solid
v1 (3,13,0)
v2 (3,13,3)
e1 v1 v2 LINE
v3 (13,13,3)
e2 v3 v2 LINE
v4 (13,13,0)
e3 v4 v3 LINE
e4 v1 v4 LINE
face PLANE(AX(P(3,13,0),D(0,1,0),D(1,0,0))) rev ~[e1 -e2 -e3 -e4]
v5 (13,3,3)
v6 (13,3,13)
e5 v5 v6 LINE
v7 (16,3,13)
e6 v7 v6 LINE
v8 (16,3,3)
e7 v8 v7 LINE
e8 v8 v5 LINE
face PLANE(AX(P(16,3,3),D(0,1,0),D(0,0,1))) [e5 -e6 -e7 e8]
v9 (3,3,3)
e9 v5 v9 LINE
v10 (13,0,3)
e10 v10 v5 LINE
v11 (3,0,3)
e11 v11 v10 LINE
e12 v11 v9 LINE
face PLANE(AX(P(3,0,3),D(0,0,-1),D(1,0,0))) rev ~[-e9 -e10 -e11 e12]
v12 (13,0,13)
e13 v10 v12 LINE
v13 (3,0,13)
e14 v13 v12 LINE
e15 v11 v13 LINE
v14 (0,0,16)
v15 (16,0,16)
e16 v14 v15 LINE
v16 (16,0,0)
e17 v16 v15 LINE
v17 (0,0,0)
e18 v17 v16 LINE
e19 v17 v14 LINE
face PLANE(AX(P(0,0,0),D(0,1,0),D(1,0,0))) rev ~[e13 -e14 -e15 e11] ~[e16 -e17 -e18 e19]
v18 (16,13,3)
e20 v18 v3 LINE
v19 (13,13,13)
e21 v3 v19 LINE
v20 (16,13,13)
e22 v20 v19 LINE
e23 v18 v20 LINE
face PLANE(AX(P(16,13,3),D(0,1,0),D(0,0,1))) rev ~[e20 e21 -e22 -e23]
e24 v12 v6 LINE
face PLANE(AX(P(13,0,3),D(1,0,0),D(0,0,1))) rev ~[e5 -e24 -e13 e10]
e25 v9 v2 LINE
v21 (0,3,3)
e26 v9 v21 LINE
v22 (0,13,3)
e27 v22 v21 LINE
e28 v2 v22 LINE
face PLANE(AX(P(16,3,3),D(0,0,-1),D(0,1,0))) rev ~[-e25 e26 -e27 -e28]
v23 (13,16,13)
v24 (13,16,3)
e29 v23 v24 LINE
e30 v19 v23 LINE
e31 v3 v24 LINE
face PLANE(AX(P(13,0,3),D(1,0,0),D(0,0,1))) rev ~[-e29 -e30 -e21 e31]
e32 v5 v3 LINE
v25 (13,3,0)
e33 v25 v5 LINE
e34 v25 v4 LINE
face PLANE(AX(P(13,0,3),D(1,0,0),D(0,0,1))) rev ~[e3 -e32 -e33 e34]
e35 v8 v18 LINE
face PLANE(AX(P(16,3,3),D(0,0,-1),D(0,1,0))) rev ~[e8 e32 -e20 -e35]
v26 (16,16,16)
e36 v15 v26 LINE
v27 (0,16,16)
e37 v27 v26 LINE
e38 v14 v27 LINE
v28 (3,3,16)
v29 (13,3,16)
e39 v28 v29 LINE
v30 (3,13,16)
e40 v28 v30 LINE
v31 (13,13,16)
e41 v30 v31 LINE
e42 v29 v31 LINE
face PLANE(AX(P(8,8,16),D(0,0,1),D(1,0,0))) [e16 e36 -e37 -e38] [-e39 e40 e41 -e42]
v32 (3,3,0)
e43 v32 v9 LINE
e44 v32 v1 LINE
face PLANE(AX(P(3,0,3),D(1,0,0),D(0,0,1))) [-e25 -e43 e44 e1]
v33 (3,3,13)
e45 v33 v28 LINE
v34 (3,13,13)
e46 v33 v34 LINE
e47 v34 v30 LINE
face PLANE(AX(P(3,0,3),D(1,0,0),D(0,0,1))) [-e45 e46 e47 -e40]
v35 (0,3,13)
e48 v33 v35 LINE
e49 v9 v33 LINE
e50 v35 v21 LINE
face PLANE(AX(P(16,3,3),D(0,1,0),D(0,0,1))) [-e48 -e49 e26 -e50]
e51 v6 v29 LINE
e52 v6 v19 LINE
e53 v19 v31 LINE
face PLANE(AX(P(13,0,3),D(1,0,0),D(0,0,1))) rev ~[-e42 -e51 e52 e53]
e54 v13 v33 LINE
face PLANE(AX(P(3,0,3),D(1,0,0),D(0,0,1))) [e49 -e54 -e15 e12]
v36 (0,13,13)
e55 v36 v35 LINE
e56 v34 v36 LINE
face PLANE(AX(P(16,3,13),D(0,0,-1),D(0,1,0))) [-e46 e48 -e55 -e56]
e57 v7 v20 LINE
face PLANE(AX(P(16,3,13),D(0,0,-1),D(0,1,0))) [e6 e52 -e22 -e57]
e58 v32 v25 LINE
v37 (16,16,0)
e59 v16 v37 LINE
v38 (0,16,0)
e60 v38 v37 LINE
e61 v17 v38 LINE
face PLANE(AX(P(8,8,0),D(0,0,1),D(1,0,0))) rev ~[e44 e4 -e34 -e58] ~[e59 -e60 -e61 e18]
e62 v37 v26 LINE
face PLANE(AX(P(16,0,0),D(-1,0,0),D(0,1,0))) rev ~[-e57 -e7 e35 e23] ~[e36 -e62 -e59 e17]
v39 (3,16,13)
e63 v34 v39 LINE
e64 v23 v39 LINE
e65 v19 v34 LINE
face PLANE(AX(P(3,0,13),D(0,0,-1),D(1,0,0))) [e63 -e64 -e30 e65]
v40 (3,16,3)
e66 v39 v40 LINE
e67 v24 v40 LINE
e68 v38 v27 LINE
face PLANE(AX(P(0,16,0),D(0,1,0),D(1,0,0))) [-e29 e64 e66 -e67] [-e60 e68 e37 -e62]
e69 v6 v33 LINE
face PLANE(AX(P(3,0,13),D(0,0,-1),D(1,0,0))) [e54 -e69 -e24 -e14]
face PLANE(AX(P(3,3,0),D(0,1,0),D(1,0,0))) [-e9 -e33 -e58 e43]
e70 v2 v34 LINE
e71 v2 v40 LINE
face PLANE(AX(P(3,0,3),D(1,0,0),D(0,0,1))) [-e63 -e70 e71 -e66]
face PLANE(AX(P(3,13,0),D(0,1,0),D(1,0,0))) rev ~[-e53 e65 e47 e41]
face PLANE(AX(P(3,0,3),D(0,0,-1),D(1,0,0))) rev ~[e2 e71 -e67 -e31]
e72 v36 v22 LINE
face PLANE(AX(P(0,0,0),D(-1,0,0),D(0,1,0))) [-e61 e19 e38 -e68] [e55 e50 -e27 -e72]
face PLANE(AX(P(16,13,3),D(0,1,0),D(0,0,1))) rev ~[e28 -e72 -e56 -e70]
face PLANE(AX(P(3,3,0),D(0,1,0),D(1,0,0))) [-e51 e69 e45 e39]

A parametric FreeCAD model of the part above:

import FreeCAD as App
import Part
import Sketcher

V = App.Vector


def add_polygon(sketch, points):
    """Adds a closed chain of lines whose ends are joined by coincident constraints."""
    first, n = sketch.GeometryCount, len(points)
    for a, b in zip(points, points[1:] + points[:1]):
        sketch.addGeometry(Part.LineSegment(App.Vector(*a, 0), App.Vector(*b, 0)), False)
    for i in range(n):
        sketch.addConstraint(Sketcher.Constraint("Coincident", first + i, 2, first + (i + 1) % n, 1))

doc = App.newDocument("Part")
params = doc.addObject("Spreadsheet::Sheet", "Params")
for row, (alias, value) in enumerate([
    ("sketch1_width", "16 mm"),
    ("sketch1_width2", "10 mm"),
    ("pad1_length", "16 mm"),
    ("sketch2_width", "10 mm"),
    ("pocket1_length", "25 mm"),
    ("sketch3_width", "10 mm"),
    ("pocket2_length", "25 mm"),
], start=1):
    params.set(f"A{row}", alias)
    params.set(f"B{row}", "=" + value)
    params.setAlias(f"B{row}", alias)

body = doc.addObject("PartDesign::Body", "Body")

# Sketch on XY plane
sketch1 = body.newObject("Sketcher::SketchObject", "Sketch")
sketch1.AttachmentSupport = (doc.getObject("XY_Plane"), [""])
sketch1.MapMode = "FlatFace"
add_polygon(sketch1, [(0, 16), (0, 0), (16, 0), (16, 16)])  # lines 0-3
add_polygon(sketch1, [(13, 3), (3, 3), (3, 13), (13, 13)])  # lines 4-7
sketch1.addConstraint(Sketcher.Constraint("Vertical", 0))
sketch1.addConstraint(Sketcher.Constraint("Horizontal", 1))
sketch1.addConstraint(Sketcher.Constraint("Vertical", 2))
sketch1.addConstraint(Sketcher.Constraint("Horizontal", 3))
sketch1.addConstraint(Sketcher.Constraint("Horizontal", 4))
sketch1.addConstraint(Sketcher.Constraint("Vertical", 5))
sketch1.addConstraint(Sketcher.Constraint("Horizontal", 6))
sketch1.addConstraint(Sketcher.Constraint("Vertical", 7))
sketch1.addConstraint(Sketcher.Constraint("Coincident", 0, 2, -1, 1))
sketch1.addConstraint(Sketcher.Constraint("Equal", 3, 0))
sketch1.addConstraint(Sketcher.Constraint("Equal", 6, 5))
sketch1.addConstraint(Sketcher.Constraint("DistanceX", 1, 1, 1, 2, 16.0))
sketch1.addConstraint(Sketcher.Constraint("DistanceX", 4, 2, 4, 1, 10.0))
sketch1.addConstraint(Sketcher.Constraint("DistanceX", -1, 1, 4, 2, 3.0))
sketch1.addConstraint(Sketcher.Constraint("DistanceY", -1, 1, 4, 2, 3.0))
sketch1.setExpression("Constraints[19]", "Params.sketch1_width")
sketch1.setExpression("Constraints[20]", "Params.sketch1_width2")
pad1 = body.newObject("PartDesign::Pad", "Pad")
pad1.Profile = sketch1
pad1.setExpression("Length", "Params.pad1_length")

# Sketch on XZ plane
sketch2 = body.newObject("Sketcher::SketchObject", "Sketch001")
sketch2.AttachmentSupport = (doc.getObject("XZ_Plane"), [""])
sketch2.MapMode = "FlatFace"
add_polygon(sketch2, [(3, 13), (3, 3), (13, 3), (13, 13)])  # lines 0-3
sketch2.addConstraint(Sketcher.Constraint("Vertical", 0))
sketch2.addConstraint(Sketcher.Constraint("Horizontal", 1))
sketch2.addConstraint(Sketcher.Constraint("Vertical", 2))
sketch2.addConstraint(Sketcher.Constraint("Horizontal", 3))
sketch2.addConstraint(Sketcher.Constraint("Equal", 3, 0))
sketch2.addConstraint(Sketcher.Constraint("DistanceX", 1, 1, 1, 2, 10.0))
sketch2.addConstraint(Sketcher.Constraint("DistanceX", -1, 1, 0, 2, 3.0))
sketch2.addConstraint(Sketcher.Constraint("DistanceY", -1, 1, 0, 2, 3.0))
sketch2.setExpression("Constraints[9]", "Params.sketch2_width")
pocket1 = body.newObject("PartDesign::Pocket", "Pocket")
pocket1.Profile = sketch2
pocket1.setExpression("Length", "Params.pocket1_length")

# Sketch on YZ plane
sketch3 = body.newObject("Sketcher::SketchObject", "Sketch002")
sketch3.AttachmentSupport = (doc.getObject("YZ_Plane"), [""])
sketch3.MapMode = "FlatFace"
sketch3.AttachmentOffset = App.Placement(V(0, 0, 16), App.Rotation())
add_polygon(sketch3, [(3, 13), (3, 3), (13, 3), (13, 13)])  # lines 0-3
sketch3.addConstraint(Sketcher.Constraint("Vertical", 0))
sketch3.addConstraint(Sketcher.Constraint("Horizontal", 1))
sketch3.addConstraint(Sketcher.Constraint("Vertical", 2))
sketch3.addConstraint(Sketcher.Constraint("Horizontal", 3))
sketch3.addConstraint(Sketcher.Constraint("Equal", 3, 0))
sketch3.addConstraint(Sketcher.Constraint("DistanceX", 1, 1, 1, 2, 10.0))
sketch3.addConstraint(Sketcher.Constraint("DistanceX", -1, 1, 0, 2, 3.0))
sketch3.addConstraint(Sketcher.Constraint("DistanceY", -1, 1, 0, 2, 3.0))
sketch3.setExpression("Constraints[9]", "Params.sketch3_width")
pocket2 = body.newObject("PartDesign::Pocket", "Pocket001")
pocket2.Profile = sketch3
pocket2.setExpression("Length", "Params.pocket2_length")

doc.recompute()
